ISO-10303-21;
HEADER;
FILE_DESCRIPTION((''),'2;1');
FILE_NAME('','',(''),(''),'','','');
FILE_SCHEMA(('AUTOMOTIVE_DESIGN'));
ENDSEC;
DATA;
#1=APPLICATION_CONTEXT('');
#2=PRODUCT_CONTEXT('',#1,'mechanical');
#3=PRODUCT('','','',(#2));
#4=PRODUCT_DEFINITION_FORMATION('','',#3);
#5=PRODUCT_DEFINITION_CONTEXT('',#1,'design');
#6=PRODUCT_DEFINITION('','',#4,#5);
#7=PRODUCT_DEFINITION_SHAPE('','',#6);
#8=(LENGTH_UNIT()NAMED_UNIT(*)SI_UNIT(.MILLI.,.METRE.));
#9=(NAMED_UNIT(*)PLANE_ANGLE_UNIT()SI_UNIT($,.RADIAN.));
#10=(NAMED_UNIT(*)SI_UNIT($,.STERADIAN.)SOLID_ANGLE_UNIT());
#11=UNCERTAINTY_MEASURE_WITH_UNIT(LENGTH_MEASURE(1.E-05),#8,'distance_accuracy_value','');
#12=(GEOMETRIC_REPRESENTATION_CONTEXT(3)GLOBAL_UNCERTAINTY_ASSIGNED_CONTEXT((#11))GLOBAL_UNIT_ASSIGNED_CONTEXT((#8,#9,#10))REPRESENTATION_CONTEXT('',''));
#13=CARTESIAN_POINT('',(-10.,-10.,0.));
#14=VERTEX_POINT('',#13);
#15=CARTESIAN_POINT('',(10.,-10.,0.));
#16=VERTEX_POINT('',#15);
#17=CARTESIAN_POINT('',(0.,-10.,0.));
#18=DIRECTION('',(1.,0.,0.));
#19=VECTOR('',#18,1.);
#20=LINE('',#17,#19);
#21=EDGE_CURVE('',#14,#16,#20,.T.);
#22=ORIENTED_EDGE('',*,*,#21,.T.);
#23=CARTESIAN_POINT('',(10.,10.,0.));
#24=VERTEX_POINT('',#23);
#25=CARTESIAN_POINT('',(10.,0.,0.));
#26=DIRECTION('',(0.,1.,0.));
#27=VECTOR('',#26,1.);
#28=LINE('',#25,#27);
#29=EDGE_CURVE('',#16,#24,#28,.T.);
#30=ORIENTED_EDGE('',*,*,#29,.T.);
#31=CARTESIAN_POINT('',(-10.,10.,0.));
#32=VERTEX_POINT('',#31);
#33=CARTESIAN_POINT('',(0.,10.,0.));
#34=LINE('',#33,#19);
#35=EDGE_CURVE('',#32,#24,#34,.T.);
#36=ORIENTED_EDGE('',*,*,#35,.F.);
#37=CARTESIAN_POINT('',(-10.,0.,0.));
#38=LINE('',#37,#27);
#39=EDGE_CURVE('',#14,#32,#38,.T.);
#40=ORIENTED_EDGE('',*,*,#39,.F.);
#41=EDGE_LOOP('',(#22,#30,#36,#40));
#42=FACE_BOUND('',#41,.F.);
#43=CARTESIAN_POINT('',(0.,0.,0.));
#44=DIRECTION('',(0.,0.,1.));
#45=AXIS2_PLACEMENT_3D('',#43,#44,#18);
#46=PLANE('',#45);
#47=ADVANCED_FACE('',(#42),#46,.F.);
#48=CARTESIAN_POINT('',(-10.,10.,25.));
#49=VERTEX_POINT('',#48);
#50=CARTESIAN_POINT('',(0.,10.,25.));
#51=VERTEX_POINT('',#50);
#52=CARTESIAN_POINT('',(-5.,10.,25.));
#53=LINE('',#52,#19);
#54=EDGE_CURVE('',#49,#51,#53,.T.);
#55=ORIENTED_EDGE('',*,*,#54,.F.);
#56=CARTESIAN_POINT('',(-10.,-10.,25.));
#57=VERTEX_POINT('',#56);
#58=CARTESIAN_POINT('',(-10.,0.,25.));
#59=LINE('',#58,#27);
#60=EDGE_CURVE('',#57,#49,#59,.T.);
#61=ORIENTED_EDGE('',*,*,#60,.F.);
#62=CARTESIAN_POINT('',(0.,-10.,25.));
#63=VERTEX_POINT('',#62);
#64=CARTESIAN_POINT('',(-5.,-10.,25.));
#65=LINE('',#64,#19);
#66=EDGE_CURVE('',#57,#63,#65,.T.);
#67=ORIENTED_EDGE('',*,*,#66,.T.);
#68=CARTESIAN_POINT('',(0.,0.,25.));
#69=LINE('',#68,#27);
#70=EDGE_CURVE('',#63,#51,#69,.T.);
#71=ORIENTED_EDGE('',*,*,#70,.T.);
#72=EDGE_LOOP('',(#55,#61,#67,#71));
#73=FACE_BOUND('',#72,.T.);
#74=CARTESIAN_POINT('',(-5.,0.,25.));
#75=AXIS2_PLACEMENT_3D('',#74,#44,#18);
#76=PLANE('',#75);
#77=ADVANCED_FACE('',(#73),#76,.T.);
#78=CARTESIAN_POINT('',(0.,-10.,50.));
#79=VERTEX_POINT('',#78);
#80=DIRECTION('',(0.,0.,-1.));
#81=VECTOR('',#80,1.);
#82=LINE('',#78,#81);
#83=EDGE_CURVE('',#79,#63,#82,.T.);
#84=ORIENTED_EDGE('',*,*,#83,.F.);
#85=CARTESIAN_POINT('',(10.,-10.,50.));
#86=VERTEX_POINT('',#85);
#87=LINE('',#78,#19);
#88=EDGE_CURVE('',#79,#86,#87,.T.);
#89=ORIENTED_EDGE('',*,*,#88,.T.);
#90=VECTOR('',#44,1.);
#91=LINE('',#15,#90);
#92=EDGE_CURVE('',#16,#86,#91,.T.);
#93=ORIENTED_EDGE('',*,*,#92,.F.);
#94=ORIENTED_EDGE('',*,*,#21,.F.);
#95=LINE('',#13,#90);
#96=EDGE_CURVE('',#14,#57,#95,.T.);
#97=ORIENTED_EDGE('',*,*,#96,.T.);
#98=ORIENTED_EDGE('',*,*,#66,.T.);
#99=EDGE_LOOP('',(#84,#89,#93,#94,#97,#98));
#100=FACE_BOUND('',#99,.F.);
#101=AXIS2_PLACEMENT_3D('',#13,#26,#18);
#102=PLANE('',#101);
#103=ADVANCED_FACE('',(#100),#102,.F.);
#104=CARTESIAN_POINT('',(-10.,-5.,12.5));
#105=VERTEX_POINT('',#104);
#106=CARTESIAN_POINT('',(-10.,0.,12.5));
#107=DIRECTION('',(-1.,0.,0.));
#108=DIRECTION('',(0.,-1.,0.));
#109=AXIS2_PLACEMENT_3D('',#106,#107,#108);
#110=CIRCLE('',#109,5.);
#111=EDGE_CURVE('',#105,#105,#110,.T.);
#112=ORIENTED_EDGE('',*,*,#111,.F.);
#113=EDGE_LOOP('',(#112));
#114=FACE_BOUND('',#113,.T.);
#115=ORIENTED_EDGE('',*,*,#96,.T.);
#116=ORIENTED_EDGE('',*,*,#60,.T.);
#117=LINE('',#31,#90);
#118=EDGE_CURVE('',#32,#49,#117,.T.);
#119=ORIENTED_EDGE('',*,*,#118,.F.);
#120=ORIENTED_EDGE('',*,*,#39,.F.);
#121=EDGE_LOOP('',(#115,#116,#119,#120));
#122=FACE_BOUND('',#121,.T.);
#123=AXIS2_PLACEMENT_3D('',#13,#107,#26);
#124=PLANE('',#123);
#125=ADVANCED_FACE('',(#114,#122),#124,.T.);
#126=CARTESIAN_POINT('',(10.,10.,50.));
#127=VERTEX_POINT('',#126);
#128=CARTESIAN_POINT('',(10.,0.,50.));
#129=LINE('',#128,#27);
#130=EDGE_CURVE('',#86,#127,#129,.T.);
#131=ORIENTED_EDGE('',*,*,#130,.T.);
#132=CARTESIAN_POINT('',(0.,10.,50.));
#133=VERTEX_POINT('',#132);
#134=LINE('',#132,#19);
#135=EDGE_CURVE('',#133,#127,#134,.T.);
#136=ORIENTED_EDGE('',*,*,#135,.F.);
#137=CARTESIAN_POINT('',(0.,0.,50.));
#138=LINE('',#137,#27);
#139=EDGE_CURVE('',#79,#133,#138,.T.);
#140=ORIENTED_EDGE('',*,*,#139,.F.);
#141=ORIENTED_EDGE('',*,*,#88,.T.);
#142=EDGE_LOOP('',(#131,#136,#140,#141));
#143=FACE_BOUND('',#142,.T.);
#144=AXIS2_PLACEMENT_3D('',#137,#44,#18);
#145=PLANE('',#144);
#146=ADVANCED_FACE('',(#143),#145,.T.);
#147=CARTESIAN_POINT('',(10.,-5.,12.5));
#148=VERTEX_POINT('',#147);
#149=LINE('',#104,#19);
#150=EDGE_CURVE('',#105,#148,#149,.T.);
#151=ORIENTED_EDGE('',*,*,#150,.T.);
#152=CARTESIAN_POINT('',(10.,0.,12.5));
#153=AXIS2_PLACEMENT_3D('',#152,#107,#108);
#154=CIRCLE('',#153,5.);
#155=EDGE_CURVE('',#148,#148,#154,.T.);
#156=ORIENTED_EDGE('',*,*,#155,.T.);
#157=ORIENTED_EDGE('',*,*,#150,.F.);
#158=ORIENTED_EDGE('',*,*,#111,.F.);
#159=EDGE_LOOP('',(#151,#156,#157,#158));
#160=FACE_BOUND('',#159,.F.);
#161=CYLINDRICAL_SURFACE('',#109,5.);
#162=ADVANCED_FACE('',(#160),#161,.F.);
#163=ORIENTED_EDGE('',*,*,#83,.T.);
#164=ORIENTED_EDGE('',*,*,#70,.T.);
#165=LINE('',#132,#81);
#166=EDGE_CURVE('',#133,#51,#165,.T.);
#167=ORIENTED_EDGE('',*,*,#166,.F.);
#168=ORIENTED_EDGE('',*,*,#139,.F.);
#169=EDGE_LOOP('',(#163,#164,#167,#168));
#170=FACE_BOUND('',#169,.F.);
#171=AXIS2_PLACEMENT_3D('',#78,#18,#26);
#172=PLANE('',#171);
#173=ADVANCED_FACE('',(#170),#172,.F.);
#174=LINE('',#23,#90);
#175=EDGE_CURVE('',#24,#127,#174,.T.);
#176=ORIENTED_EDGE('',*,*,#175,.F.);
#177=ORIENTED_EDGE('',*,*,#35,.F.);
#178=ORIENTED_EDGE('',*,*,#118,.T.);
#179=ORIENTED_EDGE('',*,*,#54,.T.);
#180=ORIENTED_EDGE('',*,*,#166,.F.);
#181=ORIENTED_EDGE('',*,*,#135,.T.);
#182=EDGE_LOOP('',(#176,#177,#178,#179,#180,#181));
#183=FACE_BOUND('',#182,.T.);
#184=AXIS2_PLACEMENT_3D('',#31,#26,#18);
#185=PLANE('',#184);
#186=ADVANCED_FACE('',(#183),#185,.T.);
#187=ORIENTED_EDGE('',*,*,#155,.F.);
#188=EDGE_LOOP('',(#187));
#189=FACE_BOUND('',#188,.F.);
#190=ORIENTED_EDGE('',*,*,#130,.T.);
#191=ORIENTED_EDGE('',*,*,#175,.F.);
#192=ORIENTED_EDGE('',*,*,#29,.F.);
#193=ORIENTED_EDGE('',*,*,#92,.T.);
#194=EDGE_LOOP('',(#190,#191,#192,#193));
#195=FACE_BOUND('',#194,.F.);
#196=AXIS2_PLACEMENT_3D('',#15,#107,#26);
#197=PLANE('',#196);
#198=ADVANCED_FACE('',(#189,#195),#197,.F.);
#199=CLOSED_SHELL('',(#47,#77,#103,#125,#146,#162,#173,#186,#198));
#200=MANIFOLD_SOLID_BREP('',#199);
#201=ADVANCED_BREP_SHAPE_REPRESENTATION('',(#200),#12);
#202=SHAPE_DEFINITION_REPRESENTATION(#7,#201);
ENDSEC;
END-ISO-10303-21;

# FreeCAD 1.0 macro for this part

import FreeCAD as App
import Part
import Sketcher

doc = App.newDocument("Part")
body = doc.addObject("PartDesign::Body", "Body")

sketch1 = doc.addObject("Sketcher::SketchObject", "Sketch")
body.addObject(sketch1)
sketch1.AttachmentSupport = (doc.XY_Plane, [""])
sketch1.MapMode = "FlatFace"
sketch1.addGeometry([
    Part.LineSegment(App.Vector(-10, 10, 0), App.Vector(-10, -10, 0)),
    Part.LineSegment(App.Vector(-10, -10, 0), App.Vector(10, -10, 0)),
    Part.LineSegment(App.Vector(10, -10, 0), App.Vector(10, 10, 0)),
    Part.LineSegment(App.Vector(10, 10, 0), App.Vector(-10, 10, 0)),
], False)
sketch1.addConstraint([
    Sketcher.Constraint("Coincident", 0, 2, 1, 1),
    Sketcher.Constraint("Coincident", 1, 2, 2, 1),
    Sketcher.Constraint("Coincident", 2, 2, 3, 1),
    Sketcher.Constraint("Coincident", 3, 2, 0, 1),
    Sketcher.Constraint("Vertical", 0),
    Sketcher.Constraint("Horizontal", 1),
    Sketcher.Constraint("Vertical", 2),
    Sketcher.Constraint("Horizontal", 3),
    Sketcher.Constraint("Symmetric", 0, 2, 2, 2, -1, 1),
    Sketcher.Constraint("Equal", 3, 0),
    Sketcher.Constraint("DistanceX", 1, 1, 1, 2, 20.0),
])
pad1 = doc.addObject("PartDesign::Pad", "Pad")
body.addObject(pad1)
pad1.Profile = sketch1
pad1.Length = 50

sketch2 = doc.addObject("Sketcher::SketchObject", "Sketch001")
body.addObject(sketch2)
sketch2.AttachmentSupport = (doc.XY_Plane, [""])
sketch2.MapMode = "FlatFace"
sketch2.AttachmentOffset = App.Placement(App.Vector(0, 0, 50), App.Rotation())
sketch2.addGeometry([
    Part.LineSegment(App.Vector(-10, 10, 0), App.Vector(-10, -10, 0)),
    Part.LineSegment(App.Vector(-10, -10, 0), App.Vector(0, -10, 0)),
    Part.LineSegment(App.Vector(0, -10, 0), App.Vector(0, 10, 0)),
    Part.LineSegment(App.Vector(0, 10, 0), App.Vector(-10, 10, 0)),
], False)
sketch2.addConstraint([
    Sketcher.Constraint("Coincident", 0, 2, 1, 1),
    Sketcher.Constraint("Coincident", 1, 2, 2, 1),
    Sketcher.Constraint("Coincident", 2, 2, 3, 1),
    Sketcher.Constraint("Coincident", 3, 2, 0, 1),
    Sketcher.Constraint("Vertical", 0),
    Sketcher.Constraint("Horizontal", 1),
    Sketcher.Constraint("Vertical", 2),
    Sketcher.Constraint("Horizontal", 3),
    Sketcher.Constraint("Symmetric", 1, 2, 2, 2, -1, 1),
    Sketcher.Constraint("DistanceX", 1, 1, 1, 2, 10.0),
    Sketcher.Constraint("DistanceY", 0, 2, 0, 1, 20.0),
])
pocket1 = doc.addObject("PartDesign::Pocket", "Pocket")
body.addObject(pocket1)
pocket1.Profile = sketch2
pocket1.Length = 25

sketch3 = doc.addObject("Sketcher::SketchObject", "Sketch002")
body.addObject(sketch3)
sketch3.AttachmentSupport = (doc.YZ_Plane, [""])
sketch3.MapMode = "FlatFace"
sketch3.AttachmentOffset = App.Placement(App.Vector(0, 0, -10), App.Rotation())
sketch3.addGeometry(Part.Circle(App.Vector(0, 12, 0), App.Vector(0, 0, 1), 5), False)
sketch3.addConstraint([
    Sketcher.Constraint("PointOnObject", 0, 3, -2),
    Sketcher.Constraint("Diameter", 0, 10.0),
    Sketcher.Constraint("DistanceY", -1, 1, 0, 3, 12.5),
])
pocket2 = doc.addObject("PartDesign::Pocket", "Pocket001")
body.addObject(pocket2)
pocket2.Profile = sketch3
pocket2.Length = 50
pocket2.Reversed = True

doc.recompute()
